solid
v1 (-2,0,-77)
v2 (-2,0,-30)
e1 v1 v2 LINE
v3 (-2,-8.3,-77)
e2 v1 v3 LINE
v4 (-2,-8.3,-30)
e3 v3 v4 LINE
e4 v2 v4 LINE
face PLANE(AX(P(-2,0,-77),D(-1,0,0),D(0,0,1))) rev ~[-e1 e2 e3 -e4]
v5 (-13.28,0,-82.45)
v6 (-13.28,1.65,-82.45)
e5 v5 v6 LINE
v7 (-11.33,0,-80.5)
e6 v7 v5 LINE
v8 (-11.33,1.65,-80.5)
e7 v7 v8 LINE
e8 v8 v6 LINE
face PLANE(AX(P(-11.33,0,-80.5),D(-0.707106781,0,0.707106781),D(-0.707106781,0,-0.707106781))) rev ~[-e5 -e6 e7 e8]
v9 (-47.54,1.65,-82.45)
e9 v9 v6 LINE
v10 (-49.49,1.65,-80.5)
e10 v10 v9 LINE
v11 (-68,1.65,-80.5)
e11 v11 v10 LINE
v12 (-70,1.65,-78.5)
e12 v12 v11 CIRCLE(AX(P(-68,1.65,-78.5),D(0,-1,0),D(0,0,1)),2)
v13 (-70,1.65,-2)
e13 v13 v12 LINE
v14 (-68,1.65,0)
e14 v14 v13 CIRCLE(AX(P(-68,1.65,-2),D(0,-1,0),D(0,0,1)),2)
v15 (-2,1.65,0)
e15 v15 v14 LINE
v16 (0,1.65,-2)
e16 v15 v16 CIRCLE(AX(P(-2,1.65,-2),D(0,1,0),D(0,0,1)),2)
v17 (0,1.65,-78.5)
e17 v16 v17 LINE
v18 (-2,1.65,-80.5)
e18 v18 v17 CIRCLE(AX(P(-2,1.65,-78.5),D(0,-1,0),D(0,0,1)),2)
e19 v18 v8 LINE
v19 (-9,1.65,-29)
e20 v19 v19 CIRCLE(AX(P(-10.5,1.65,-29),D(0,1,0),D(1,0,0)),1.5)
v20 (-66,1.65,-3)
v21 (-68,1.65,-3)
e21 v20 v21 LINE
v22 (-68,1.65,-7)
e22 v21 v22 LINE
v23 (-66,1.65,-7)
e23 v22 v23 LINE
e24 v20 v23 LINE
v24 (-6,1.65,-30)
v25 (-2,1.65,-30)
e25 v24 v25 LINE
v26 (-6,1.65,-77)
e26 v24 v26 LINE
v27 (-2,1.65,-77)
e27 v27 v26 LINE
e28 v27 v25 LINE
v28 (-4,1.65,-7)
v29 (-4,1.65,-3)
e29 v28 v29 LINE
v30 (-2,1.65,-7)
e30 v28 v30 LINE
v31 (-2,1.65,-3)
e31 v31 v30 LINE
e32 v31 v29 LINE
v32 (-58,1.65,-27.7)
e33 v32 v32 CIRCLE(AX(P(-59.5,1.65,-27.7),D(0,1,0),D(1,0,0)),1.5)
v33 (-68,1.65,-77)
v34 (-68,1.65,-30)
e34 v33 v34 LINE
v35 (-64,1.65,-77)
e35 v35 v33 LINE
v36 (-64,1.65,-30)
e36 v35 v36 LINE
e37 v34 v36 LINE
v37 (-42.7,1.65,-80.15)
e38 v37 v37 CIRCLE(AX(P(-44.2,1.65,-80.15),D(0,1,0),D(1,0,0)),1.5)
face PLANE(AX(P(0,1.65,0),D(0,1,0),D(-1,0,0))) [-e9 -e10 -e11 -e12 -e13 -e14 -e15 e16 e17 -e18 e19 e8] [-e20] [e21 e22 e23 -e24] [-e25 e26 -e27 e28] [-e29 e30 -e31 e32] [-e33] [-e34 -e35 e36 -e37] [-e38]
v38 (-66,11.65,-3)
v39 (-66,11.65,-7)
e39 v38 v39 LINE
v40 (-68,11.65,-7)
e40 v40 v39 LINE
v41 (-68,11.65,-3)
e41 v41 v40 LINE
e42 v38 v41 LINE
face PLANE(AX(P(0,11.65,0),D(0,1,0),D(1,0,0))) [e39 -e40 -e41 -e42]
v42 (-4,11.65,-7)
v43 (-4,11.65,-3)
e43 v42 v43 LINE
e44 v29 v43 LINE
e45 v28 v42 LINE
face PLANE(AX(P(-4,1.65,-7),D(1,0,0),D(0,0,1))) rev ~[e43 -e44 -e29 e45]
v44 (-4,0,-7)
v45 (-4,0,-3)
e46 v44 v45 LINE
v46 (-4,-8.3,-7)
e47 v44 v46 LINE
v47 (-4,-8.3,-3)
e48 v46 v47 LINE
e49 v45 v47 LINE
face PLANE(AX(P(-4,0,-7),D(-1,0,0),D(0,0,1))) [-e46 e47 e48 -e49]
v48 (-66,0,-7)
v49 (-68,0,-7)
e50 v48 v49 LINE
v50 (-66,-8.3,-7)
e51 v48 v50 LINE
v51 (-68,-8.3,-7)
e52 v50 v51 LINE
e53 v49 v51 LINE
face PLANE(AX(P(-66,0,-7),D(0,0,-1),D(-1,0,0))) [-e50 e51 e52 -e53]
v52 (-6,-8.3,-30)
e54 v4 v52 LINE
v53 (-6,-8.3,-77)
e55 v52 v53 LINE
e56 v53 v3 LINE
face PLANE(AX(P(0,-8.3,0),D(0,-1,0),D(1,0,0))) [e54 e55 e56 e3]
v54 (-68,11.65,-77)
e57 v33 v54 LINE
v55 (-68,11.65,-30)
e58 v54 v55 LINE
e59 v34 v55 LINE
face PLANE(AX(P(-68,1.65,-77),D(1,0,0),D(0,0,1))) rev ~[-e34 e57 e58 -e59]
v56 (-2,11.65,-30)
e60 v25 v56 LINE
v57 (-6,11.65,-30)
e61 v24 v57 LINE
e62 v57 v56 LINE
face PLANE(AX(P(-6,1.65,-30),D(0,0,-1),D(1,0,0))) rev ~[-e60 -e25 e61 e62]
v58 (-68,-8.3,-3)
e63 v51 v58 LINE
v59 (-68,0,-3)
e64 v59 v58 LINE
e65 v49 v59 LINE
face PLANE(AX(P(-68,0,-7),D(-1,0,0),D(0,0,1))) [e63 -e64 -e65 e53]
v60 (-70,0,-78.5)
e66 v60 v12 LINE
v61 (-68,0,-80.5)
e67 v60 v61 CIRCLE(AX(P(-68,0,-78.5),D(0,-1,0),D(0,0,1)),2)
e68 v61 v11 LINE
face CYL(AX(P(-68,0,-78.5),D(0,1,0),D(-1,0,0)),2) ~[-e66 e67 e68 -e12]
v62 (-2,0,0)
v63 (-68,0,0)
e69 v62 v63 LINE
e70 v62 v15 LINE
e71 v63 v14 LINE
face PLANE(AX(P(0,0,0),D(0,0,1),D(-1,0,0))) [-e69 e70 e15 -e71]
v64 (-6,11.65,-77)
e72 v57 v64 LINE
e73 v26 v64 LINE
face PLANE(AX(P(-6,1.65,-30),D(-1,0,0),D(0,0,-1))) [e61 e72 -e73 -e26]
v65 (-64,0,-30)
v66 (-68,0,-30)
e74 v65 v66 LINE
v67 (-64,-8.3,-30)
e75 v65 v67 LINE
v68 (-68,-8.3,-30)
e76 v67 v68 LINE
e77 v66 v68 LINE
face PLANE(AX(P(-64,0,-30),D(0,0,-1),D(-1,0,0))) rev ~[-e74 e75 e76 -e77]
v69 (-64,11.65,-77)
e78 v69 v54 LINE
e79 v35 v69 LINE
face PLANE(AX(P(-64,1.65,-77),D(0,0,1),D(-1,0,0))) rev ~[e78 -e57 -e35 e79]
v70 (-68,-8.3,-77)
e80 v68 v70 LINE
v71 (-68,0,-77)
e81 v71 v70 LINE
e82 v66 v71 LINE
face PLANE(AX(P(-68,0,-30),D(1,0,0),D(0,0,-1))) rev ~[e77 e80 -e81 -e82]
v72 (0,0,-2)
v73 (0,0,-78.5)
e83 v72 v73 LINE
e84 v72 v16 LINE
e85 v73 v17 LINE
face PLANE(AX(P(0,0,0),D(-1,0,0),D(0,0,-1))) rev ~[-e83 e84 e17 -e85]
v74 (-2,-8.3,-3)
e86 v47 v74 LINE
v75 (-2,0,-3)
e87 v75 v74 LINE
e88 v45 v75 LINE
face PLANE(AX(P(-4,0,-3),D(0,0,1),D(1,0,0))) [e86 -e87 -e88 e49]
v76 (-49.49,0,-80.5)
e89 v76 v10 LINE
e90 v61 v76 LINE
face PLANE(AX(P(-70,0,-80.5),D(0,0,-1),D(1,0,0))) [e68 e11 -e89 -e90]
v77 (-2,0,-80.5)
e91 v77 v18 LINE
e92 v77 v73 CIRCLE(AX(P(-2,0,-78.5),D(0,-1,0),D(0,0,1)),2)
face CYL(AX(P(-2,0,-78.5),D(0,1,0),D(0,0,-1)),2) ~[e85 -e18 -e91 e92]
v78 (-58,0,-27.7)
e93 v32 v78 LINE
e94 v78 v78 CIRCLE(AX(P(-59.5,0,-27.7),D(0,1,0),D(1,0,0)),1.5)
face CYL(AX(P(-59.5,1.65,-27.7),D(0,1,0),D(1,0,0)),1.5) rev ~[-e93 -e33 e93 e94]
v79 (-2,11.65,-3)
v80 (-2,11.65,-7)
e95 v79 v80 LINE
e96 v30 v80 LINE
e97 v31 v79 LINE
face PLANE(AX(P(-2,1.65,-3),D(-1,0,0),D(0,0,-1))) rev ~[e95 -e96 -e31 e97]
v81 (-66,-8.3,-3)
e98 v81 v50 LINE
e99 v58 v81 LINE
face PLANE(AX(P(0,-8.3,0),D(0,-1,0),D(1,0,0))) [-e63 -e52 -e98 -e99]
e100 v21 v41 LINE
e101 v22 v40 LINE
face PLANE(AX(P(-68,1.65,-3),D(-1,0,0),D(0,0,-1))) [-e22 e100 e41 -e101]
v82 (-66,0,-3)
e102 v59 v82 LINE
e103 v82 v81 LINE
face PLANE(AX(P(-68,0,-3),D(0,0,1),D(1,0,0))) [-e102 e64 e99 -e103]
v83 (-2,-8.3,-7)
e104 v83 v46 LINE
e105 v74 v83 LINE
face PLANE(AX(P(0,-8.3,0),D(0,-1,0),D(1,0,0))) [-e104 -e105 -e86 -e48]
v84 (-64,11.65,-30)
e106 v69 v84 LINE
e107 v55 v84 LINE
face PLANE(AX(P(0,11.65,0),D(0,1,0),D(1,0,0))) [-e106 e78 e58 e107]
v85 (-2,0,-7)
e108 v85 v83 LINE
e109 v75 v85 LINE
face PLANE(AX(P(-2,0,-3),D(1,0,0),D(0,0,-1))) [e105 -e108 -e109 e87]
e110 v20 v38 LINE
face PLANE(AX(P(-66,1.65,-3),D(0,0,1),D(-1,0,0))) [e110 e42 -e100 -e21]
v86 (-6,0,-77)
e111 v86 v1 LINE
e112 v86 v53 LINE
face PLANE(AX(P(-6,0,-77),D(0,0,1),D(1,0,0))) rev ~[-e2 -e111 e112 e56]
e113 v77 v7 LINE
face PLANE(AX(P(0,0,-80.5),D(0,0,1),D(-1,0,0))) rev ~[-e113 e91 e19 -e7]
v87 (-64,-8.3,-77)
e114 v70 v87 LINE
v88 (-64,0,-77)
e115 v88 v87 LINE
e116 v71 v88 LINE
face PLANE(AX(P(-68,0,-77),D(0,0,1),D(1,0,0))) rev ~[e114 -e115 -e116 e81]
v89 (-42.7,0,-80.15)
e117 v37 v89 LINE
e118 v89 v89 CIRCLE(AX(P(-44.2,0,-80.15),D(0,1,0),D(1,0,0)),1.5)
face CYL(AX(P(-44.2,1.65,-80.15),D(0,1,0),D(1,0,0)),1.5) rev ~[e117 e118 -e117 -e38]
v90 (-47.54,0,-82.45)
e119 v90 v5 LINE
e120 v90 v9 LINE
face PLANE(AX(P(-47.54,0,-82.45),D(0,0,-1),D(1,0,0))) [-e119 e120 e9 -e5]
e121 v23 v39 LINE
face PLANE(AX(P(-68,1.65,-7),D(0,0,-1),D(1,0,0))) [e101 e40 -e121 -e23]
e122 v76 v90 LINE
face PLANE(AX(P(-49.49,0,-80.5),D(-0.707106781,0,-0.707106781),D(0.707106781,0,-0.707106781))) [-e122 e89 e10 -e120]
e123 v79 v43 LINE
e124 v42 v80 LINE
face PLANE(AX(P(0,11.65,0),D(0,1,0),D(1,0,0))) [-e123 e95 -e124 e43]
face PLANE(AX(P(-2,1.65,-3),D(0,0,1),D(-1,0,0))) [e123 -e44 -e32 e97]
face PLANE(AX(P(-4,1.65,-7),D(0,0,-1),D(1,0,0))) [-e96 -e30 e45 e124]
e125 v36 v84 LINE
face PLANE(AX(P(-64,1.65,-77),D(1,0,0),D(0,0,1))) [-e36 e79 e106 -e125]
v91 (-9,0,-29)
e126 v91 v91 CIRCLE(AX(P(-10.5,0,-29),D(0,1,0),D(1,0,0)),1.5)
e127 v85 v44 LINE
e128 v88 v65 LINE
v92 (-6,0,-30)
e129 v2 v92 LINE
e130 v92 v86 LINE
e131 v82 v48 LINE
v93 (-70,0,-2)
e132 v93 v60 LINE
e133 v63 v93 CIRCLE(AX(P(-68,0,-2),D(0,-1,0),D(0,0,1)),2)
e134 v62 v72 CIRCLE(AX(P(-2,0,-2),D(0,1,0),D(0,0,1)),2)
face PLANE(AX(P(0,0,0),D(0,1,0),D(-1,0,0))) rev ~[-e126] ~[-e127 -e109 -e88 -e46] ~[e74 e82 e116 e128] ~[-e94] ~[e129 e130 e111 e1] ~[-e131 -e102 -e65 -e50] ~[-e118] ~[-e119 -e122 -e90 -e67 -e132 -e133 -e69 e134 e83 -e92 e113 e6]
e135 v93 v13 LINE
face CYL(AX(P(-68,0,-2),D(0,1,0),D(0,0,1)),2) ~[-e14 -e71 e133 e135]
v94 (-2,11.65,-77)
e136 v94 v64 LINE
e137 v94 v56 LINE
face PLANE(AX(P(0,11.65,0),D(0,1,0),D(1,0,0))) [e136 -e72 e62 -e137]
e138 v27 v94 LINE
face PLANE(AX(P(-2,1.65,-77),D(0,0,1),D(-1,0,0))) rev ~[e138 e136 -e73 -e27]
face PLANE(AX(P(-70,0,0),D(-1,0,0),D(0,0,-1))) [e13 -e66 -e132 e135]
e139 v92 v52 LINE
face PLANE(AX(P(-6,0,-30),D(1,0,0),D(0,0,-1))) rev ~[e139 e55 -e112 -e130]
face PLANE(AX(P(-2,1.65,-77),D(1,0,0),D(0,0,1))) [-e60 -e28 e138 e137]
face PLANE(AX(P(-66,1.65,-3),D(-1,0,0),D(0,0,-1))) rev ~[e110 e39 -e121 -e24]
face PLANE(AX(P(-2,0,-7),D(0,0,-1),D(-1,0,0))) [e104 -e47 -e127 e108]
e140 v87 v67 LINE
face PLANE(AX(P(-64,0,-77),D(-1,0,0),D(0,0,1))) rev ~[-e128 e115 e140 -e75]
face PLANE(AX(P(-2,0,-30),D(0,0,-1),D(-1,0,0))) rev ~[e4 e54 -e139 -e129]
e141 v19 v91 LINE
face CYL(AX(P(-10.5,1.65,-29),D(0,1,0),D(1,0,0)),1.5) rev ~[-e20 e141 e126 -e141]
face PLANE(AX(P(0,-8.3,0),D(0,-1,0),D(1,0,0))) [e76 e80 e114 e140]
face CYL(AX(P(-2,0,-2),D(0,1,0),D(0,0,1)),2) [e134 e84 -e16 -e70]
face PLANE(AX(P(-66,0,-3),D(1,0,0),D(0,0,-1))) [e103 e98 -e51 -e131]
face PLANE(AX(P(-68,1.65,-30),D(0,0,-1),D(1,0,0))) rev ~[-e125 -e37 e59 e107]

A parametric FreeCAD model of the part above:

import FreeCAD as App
import Part
import Sketcher
from FreeCAD import Vector


def edges_at(feature, points):
    """Names of the edges that pass closest to the given points."""
    edges = feature.Shape.Edges
    near = lambda p: min(range(len(edges)), key=lambda i: edges[i].distToShape(Part.Vertex(*p))[0])
    return sorted({f"Edge{near(p) + 1}" for p in points})


def add_polygon(sketch, points):
    """Adds a closed chain of lines whose ends are joined by coincident constraints."""
    first, n = sketch.GeometryCount, len(points)
    for a, b in zip(points, points[1:] + points[:1]):
        sketch.addGeometry(Part.LineSegment(App.Vector(*a, 0), App.Vector(*b, 0)), False)
    for i in range(n):
        sketch.addConstraint(Sketcher.Constraint("Coincident", first + i, 2, first + (i + 1) % n, 1))

doc = App.newDocument("Part")
body = doc.addObject("PartDesign::Body", "Body")

sketch1 = body.newObject("Sketcher::SketchObject", "Sketch")
sketch1.AttachmentSupport = (doc.getObject("XZ_Plane"), [""])
sketch1.MapMode = "FlatFace"
add_polygon(sketch1, [(-70, 0), (0, 0), (0, -80.5), (-11.33, -80.5), (-13.28, -82.45), (-47.54, -82.45), (-49.49, -80.5), (-70, -80.5)])
sketch1.addConstraint([
    Sketcher.Constraint("Horizontal", 0),
    Sketcher.Constraint("Vertical", 1),
    Sketcher.Constraint("Horizontal", 2),
    Sketcher.Constraint("Horizontal", 4),
    Sketcher.Constraint("Horizontal", 6),
    Sketcher.Constraint("Vertical", 7),
    Sketcher.Constraint("Coincident", 0, 2, -1, 1),
    Sketcher.Constraint("Perpendicular", 3, 5),
    Sketcher.Constraint("Horizontal", 2, 2, 5, 2),
    Sketcher.Constraint("Equal", 3, 5),
    Sketcher.Constraint("DistanceX", 0, 1, 0, 2, 70.0),
    Sketcher.Constraint("DistanceY", 1, 2, 1, 1, 80.5),
    Sketcher.Constraint("DistanceX", 2, 2, 2, 1, 11.33),
    Sketcher.Constraint("DistanceX", 6, 2, 6, 1, 20.51),
    Sketcher.Constraint("DistanceY", 3, 2, -1, 1, 82.45),
])
pad1 = body.newObject("PartDesign::Pad", "Pad")
pad1.Profile = sketch1
pad1.Length = 1.65
pad1.Reversed = True
doc.recompute()

fillet = body.newObject("PartDesign::Fillet", "Fillet")
fillet.Base = (pad1, edges_at(pad1, [
    (0, 0.825, 0),
    (-70, 0.825, 0),
    (0, 0.825, -80.5),
    (-70, 0.825, -80.5),
]))
fillet.Radius = 2

sketch2 = body.newObject("Sketcher::SketchObject", "Sketch001")
sketch2.AttachmentSupport = (doc.getObject("XZ_Plane"), [""])
sketch2.MapMode = "FlatFace"
sketch2.AttachmentOffset = App.Placement(Vector(0, 0, -1.65), App.Rotation())
sketch2.addGeometry([
    Part.Circle(Vector(-59.5, -27.7, 0), Vector(0, 0, 1), 1.5),
    Part.Circle(Vector(-10.5, -29, 0), Vector(0, 0, 1), 1.5),
    Part.Circle(Vector(-44.2, -80.15, 0), Vector(0, 0, 1), 1.5),
], False)
sketch2.addConstraint([
    Sketcher.Constraint("Equal", 0, 1),
    Sketcher.Constraint("Equal", 1, 2),
    Sketcher.Constraint("Diameter", 0, 3.0),
    Sketcher.Constraint("DistanceY", 1, 3, -1, 1, 29.0),
    Sketcher.Constraint("DistanceY", 0, 3, -1, 1, 27.7),
    Sketcher.Constraint("DistanceX", 1, 3, -1, 1, 10.5),
    Sketcher.Constraint("DistanceX", 0, 3, 1, 3, 49.0),
    Sketcher.Constraint("DistanceX", 2, 3, -1, 1, 44.2),
    Sketcher.Constraint("DistanceY", 2, 3, -1, 1, 80.15),
])
pocket1 = body.newObject("PartDesign::Pocket", "Pocket")
pocket1.Profile = sketch2
pocket1.Type = "ThroughAll"
pocket1.Reversed = True

sketch3 = body.newObject("Sketcher::SketchObject", "Sketch002")
sketch3.AttachmentSupport = (doc.getObject("XZ_Plane"), [""])
sketch3.MapMode = "FlatFace"
add_polygon(sketch3, [(-2, -77), (-2, -30), (-6, -30), (-6, -77)])
add_polygon(sketch3, [(-64, -77), (-64, -30), (-68, -30), (-68, -77)])
add_polygon(sketch3, [(-4, -7), (-2, -7), (-2, -3), (-4, -3)])
add_polygon(sketch3, [(-68, -7), (-66, -7), (-66, -3), (-68, -3)])
sketch3.addConstraint([
    Sketcher.Constraint("Vertical", 0),
    Sketcher.Constraint("Horizontal", 1),
    Sketcher.Constraint("Vertical", 2),
    Sketcher.Constraint("Horizontal", 3),
    Sketcher.Constraint("Vertical", 4),
    Sketcher.Constraint("Horizontal", 5),
    Sketcher.Constraint("Vertical", 6),
    Sketcher.Constraint("Horizontal", 7),
    Sketcher.Constraint("Horizontal", 8),
    Sketcher.Constraint("Vertical", 9),
    Sketcher.Constraint("Horizontal", 10),
    Sketcher.Constraint("Vertical", 11),
    Sketcher.Constraint("Horizontal", 12),
    Sketcher.Constraint("Vertical", 13),
    Sketcher.Constraint("Horizontal", 14),
    Sketcher.Constraint("Vertical", 15),
    Sketcher.Constraint("Horizontal", 1, 2, 4, 2),
    Sketcher.Constraint("Horizontal", 3, 2, 6, 2),
    Sketcher.Constraint("Horizontal", 11, 2, 12, 2),
    Sketcher.Constraint("Horizontal", 10, 2, 13, 2),
    Sketcher.Constraint("Vertical", 3, 2, 8, 2),
    Sketcher.Constraint("Vertical", 6, 2, 14, 2),
    Sketcher.Constraint("Equal", 3, 5),
    Sketcher.Constraint("Equal", 10, 12),
    Sketcher.Constraint("Equal", 7, 9),
    Sketcher.Constraint("DistanceX", 1, 2, 1, 1, 4.0),
    Sketcher.Constraint("DistanceX", 8, 1, 8, 2, 2.0),
    Sketcher.Constraint("DistanceY", 0, 1, 0, 2, 47.0),
    Sketcher.Constraint("DistanceX", 0, 2, -1, 1, 2.0),
    Sketcher.Constraint("DistanceY", 0, 2, -1, 1, 30.0),
    Sketcher.Constraint("DistanceY", 9, 2, -1, 1, 3.0),
    Sketcher.Constraint("DistanceX", 4, 2, -1, 1, 64.0),
])
pad2 = body.newObject("PartDesign::Pad", "Pad001")
pad2.Profile = sketch3
pad2.Length = 8.3

sketch4 = body.newObject("Sketcher::SketchObject", "Sketch003")
sketch4.AttachmentSupport = (doc.getObject("XZ_Plane"), [""])
sketch4.MapMode = "FlatFace"
sketch4.AttachmentOffset = App.Placement(Vector(0, 0, -1.65), App.Rotation())
add_polygon(sketch4, [(-2, -30), (-2, -77), (-6, -77), (-6, -30)])
add_polygon(sketch4, [(-64, -30), (-64, -77), (-68, -77), (-68, -30)])
add_polygon(sketch4, [(-68, -3), (-66, -3), (-66, -7), (-68, -7)])
add_polygon(sketch4, [(-4, -3), (-2, -3), (-2, -7), (-4, -7)])
sketch4.addConstraint([
    Sketcher.Constraint("Vertical", 0),
    Sketcher.Constraint("Horizontal", 1),
    Sketcher.Constraint("Vertical", 2),
    Sketcher.Constraint("Horizontal", 3),
    Sketcher.Constraint("Vertical", 4),
    Sketcher.Constraint("Horizontal", 5),
    Sketcher.Constraint("Vertical", 6),
    Sketcher.Constraint("Horizontal", 7),
    Sketcher.Constraint("Horizontal", 8),
    Sketcher.Constraint("Vertical", 9),
    Sketcher.Constraint("Horizontal", 10),
    Sketcher.Constraint("Vertical", 11),
    Sketcher.Constraint("Horizontal", 12),
    Sketcher.Constraint("Vertical", 13),
    Sketcher.Constraint("Horizontal", 14),
    Sketcher.Constraint("Vertical", 15),
    Sketcher.Constraint("Horizontal", 1, 2, 4, 2),
    Sketcher.Constraint("Horizontal", 3, 2, 6, 2),
    Sketcher.Constraint("Horizontal", 11, 2, 12, 2),
    Sketcher.Constraint("Horizontal", 10, 2, 13, 2),
    Sketcher.Constraint("Vertical", 6, 2, 10, 2),
    Sketcher.Constraint("Vertical", 3, 2, 12, 2),
    Sketcher.Constraint("Equal", 3, 5),
    Sketcher.Constraint("Equal", 10, 12),
    Sketcher.Constraint("Equal", 7, 9),
    Sketcher.Constraint("DistanceX", 1, 2, 1, 1, 4.0),
    Sketcher.Constraint("DistanceX", 8, 1, 8, 2, 2.0),
    Sketcher.Constraint("DistanceY", 0, 2, 0, 1, 47.0),
    Sketcher.Constraint("DistanceX", 0, 2, -1, 1, 2.0),
    Sketcher.Constraint("DistanceY", 0, 2, -1, 1, 77.0),
    Sketcher.Constraint("DistanceX", 4, 2, -1, 1, 64.0),
    Sketcher.Constraint("DistanceY", 8, 2, -1, 1, 3.0),
])
pad3 = body.newObject("PartDesign::Pad", "Pad002")
pad3.Profile = sketch4
pad3.Length = 10
pad3.Reversed = True

doc.recompute()
